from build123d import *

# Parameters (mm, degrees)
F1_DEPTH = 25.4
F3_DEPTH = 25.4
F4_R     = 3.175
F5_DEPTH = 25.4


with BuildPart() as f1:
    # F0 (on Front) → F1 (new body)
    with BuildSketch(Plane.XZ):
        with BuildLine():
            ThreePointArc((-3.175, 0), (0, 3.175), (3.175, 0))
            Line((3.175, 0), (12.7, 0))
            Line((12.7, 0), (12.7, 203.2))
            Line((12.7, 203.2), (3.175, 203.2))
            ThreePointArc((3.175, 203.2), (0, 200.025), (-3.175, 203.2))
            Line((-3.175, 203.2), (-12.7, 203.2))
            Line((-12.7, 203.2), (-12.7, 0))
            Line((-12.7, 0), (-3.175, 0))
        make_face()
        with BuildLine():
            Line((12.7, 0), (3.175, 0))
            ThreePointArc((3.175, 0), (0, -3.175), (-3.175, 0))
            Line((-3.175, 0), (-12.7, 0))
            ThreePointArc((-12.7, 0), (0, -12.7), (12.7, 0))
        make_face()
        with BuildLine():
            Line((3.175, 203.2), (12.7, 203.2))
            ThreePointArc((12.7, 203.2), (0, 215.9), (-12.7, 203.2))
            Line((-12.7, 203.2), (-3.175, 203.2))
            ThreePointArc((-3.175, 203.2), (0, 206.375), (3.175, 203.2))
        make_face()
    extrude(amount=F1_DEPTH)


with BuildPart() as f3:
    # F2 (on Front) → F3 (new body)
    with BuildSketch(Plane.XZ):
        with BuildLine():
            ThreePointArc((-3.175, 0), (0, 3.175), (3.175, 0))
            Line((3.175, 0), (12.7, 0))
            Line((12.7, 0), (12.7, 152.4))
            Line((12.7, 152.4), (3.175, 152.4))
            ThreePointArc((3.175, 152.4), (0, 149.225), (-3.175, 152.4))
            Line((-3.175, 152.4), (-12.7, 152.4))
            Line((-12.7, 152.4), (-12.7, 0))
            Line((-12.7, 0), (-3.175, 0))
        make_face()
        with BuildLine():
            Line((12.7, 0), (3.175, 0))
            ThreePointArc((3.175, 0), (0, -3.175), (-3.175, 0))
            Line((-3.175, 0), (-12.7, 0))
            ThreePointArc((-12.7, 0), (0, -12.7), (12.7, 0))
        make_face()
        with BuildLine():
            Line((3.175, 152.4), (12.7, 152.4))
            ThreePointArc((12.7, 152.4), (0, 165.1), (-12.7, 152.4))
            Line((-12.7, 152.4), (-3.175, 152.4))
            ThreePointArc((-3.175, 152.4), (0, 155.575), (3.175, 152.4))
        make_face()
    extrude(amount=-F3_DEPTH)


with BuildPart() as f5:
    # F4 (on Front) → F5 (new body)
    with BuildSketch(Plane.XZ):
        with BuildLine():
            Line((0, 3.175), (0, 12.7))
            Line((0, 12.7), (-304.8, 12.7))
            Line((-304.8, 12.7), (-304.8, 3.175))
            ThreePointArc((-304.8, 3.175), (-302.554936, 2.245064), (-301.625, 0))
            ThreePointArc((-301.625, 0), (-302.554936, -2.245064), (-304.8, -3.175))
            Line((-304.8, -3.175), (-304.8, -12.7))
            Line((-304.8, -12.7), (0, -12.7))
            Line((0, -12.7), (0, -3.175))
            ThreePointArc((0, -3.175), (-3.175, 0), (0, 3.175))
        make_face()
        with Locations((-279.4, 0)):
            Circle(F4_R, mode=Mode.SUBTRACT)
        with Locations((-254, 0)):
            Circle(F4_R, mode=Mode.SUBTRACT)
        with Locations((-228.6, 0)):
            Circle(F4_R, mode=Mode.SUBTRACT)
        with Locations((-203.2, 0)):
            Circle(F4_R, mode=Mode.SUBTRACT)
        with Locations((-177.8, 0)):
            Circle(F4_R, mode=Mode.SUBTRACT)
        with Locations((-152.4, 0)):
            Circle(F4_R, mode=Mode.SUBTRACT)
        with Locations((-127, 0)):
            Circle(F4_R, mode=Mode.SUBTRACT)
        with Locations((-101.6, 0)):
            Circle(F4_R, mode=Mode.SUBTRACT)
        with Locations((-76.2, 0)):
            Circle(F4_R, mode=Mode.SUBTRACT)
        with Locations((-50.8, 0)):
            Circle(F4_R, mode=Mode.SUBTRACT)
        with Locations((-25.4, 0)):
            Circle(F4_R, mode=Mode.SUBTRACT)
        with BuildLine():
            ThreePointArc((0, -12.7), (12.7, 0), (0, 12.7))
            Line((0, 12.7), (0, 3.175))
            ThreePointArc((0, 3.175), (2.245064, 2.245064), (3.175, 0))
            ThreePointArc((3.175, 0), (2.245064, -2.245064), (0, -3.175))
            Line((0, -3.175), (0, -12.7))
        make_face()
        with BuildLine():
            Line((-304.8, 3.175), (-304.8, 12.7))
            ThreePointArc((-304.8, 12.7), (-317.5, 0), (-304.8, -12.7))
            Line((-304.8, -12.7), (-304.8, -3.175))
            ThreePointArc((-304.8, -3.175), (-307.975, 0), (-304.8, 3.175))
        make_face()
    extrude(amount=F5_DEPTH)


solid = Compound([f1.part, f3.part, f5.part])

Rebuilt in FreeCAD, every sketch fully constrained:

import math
import FreeCAD as App
import Part
import Sketcher
from FreeCAD import Vector
Q = App.Units.Quantity

doc = App.newDocument("Part")
body = doc.addObject("PartDesign::Body", "Body")

# Sketch on XZ plane
sketch1 = doc.addObject("Sketcher::SketchObject", "Sketch")
body.addObject(sketch1)
sketch1.AttachmentSupport = (doc.XZ_Plane, [""])
sketch1.MapMode = "FlatFace"
sketch1.addGeometry([
    Part.LineSegment(Vector(12.7, 0, 0), Vector(12.7, 203.2, 0)),  # 0
    Part.ArcOfCircle(Part.Circle(Vector(0, 203.2, 0), Vector(0, 0, 1), 12.7), math.radians(0), math.radians(180)),  # 1
    Part.LineSegment(Vector(-12.7, 203.2, 0), Vector(-12.7, 0, 0)),  # 2
    Part.ArcOfCircle(Part.Circle(Vector(0, 0, 0), Vector(0, 0, 1), 12.7), math.radians(180), math.radians(360)),  # 3
    Part.Circle(Vector(0, 0, 0), Vector(0, 0, 1), 3.175),  # 4
    Part.Circle(Vector(0, 203.2, 0), Vector(0, 0, 1), 3.175),  # 5
], False)
sketch1.addConstraint([
    Sketcher.Constraint("Tangent", 0, 2, 1, 1),
    Sketcher.Constraint("Tangent", 1, 2, 2, 1),
    Sketcher.Constraint("Tangent", 2, 2, 3, 1),
    Sketcher.Constraint("Tangent", 3, 2, 0, 1),
    Sketcher.Constraint("Vertical", 0),
    Sketcher.Constraint("Vertical", 2),
    Sketcher.Constraint("Coincident", 3, 3, -1, 1),
    Sketcher.Constraint("Coincident", 4, 3, -1, 1),
    Sketcher.Constraint("Coincident", 5, 3, 1, 3),
    Sketcher.Constraint("Equal", 4, 5),
    Sketcher.Constraint("Radius", 1, Q("0.5 in")),
    Sketcher.Constraint("Diameter", 4, Q("0.25 in")),
    Sketcher.Constraint("DistanceY", 0, 1, 0, 2, Q("8 in")),
])
pad1 = doc.addObject("PartDesign::Pad", "Pad")
body.addObject(pad1)
pad1.Profile = sketch1
pad1.Length = Q("1 in")
body2 = doc.addObject("PartDesign::Body", "Body001")

# Sketch on XZ plane
sketch2 = doc.addObject("Sketcher::SketchObject", "Sketch001")
body2.addObject(sketch2)
sketch2.AttachmentSupport = (doc.getObject("XZ_Plane001"), [""])
sketch2.MapMode = "FlatFace"
sketch2.addGeometry([
    Part.LineSegment(Vector(12.7, 0, 0), Vector(12.7, 152.4, 0)),  # 0
    Part.ArcOfCircle(Part.Circle(Vector(0, 152.4, 0), Vector(0, 0, 1), 12.7), math.radians(0), math.radians(180)),  # 1
    Part.LineSegment(Vector(-12.7, 152.4, 0), Vector(-12.7, 0, 0)),  # 2
    Part.ArcOfCircle(Part.Circle(Vector(0, 0, 0), Vector(0, 0, 1), 12.7), math.radians(180), math.radians(360)),  # 3
    Part.Circle(Vector(0, 0, 0), Vector(0, 0, 1), 3.175),  # 4
    Part.Circle(Vector(0, 152.4, 0), Vector(0, 0, 1), 3.175),  # 5
], False)
sketch2.addConstraint([
    Sketcher.Constraint("Tangent", 0, 2, 1, 1),
    Sketcher.Constraint("Tangent", 1, 2, 2, 1),
    Sketcher.Constraint("Tangent", 2, 2, 3, 1),
    Sketcher.Constraint("Tangent", 3, 2, 0, 1),
    Sketcher.Constraint("Vertical", 0),
    Sketcher.Constraint("Vertical", 2),
    Sketcher.Constraint("Coincident", 3, 3, -1, 1),
    Sketcher.Constraint("Coincident", 4, 3, -1, 1),
    Sketcher.Constraint("Coincident", 5, 3, 1, 3),
    Sketcher.Constraint("Equal", 4, 5),
    Sketcher.Constraint("Radius", 1, Q("0.5 in")),
    Sketcher.Constraint("Diameter", 4, Q("0.25 in")),
    Sketcher.Constraint("DistanceY", 0, 1, 0, 2, Q("6 in")),
])
pad2 = doc.addObject("PartDesign::Pad", "Pad001")
body2.addObject(pad2)
pad2.Profile = sketch2
pad2.Length = Q("1 in")
pad2.Reversed = True
body3 = doc.addObject("PartDesign::Body", "Body002")

# Sketch on XZ plane
sketch3 = doc.addObject("Sketcher::SketchObject", "Sketch002")
body3.addObject(sketch3)
sketch3.AttachmentSupport = (doc.getObject("XZ_Plane002"), [""])
sketch3.MapMode = "FlatFace"
sketch3.addGeometry([
    Part.LineSegment(Vector(0, 12.7, 0), Vector(-304.8, 12.7, 0)),  # 0
    Part.ArcOfCircle(Part.Circle(Vector(-304.8, 0, 0), Vector(0, 0, 1), 12.7), math.radians(90), math.radians(270)),  # 1
    Part.LineSegment(Vector(-304.8, -12.7, 0), Vector(0, -12.7, 0)),  # 2
    Part.ArcOfCircle(Part.Circle(Vector(0, 0, 0), Vector(0, 0, 1), 12.7), math.radians(-90), math.radians(90)),  # 3
    Part.ArcOfCircle(Part.Circle(Vector(0, 0, 0), Vector(0, 0, 1), 3.175), math.radians(90), math.radians(270)),  # 4
    Part.ArcOfCircle(Part.Circle(Vector(0, 0, 0), Vector(0, 0, 1), 3.175), math.radians(0.000002), math.radians(89.999998)),  # 5
    Part.ArcOfCircle(Part.Circle(Vector(0, 0, 0), Vector(0, 0, 1), 3.175), math.radians(-89.999998), math.radians(-0.000002)),  # 6
    Part.ArcOfCircle(Part.Circle(Vector(-304.8, 0, 0), Vector(0, 0, 1), 3.175), math.radians(0.000002), math.radians(89.999998)),  # 7
    Part.ArcOfCircle(Part.Circle(Vector(-304.8, 0, 0), Vector(0, 0, 1), 3.175), math.radians(-89.999998), math.radians(-0.000002)),  # 8
    Part.ArcOfCircle(Part.Circle(Vector(-304.8, 0, 0), Vector(0, 0, 1), 3.175), math.radians(90), math.radians(270)),  # 9
    Part.Circle(Vector(-279.4, 0, 0), Vector(0, 0, 1), 3.175),  # 10
    Part.Circle(Vector(-254, 0, 0), Vector(0, 0, 1), 3.175),  # 11
    Part.Circle(Vector(-228.6, 0, 0), Vector(0, 0, 1), 3.175),  # 12
    Part.Circle(Vector(-203.2, 0, 0), Vector(0, 0, 1), 3.175),  # 13
    Part.Circle(Vector(-177.8, 0, 0), Vector(0, 0, 1), 3.175),  # 14
    Part.Circle(Vector(-152.4, 0, 0), Vector(0, 0, 1), 3.175),  # 15
    Part.Circle(Vector(-127, 0, 0), Vector(0, 0, 1), 3.175),  # 16
    Part.Circle(Vector(-101.6, 0, 0), Vector(0, 0, 1), 3.175),  # 17
    Part.Circle(Vector(-76.2, 0, 0), Vector(0, 0, 1), 3.175),  # 18
    Part.Circle(Vector(-50.8, 0, 0), Vector(0, 0, 1), 3.175),  # 19
    Part.Circle(Vector(-25.4, 0, 0), Vector(0, 0, 1), 3.175),  # 20
], False)
sketch3.addConstraint([
    Sketcher.Constraint("Tangent", 0, 2, 1, 1),
    Sketcher.Constraint("Tangent", 1, 2, 2, 1),
    Sketcher.Constraint("Tangent", 2, 2, 3, 1),
    Sketcher.Constraint("Tangent", 3, 2, 0, 1),
    Sketcher.Constraint("Tangent", 4, 1, 5, 2),
    Sketcher.Constraint("Tangent", 5, 1, 6, 2),
    Sketcher.Constraint("Tangent", 6, 1, 4, 2),
    Sketcher.Constraint("Tangent", 7, 1, 8, 2),
    Sketcher.Constraint("Tangent", 8, 1, 9, 2),
    Sketcher.Constraint("Tangent", 9, 1, 7, 2),
    Sketcher.Constraint("Horizontal", 0),
    Sketcher.Constraint("Horizontal", 2),
    Sketcher.Constraint("Coincident", 3, 3, -1, 1),
    Sketcher.Constraint("Coincident", 4, 3, -1, 1),
    Sketcher.Constraint("Coincident", 7, 3, 1, 3),
    Sketcher.Constraint("Equal", 6, 7),
    Sketcher.Constraint("Equal", 9, 10),
    Sketcher.Constraint("Equal", 10, 11),
    Sketcher.Constraint("Equal", 11, 12),
    Sketcher.Constraint("Equal", 12, 13),
    Sketcher.Constraint("Equal", 13, 14),
    Sketcher.Constraint("Equal", 14, 15),
    Sketcher.Constraint("Equal", 15, 16),
    Sketcher.Constraint("Equal", 16, 17),
    Sketcher.Constraint("Equal", 17, 18),
    Sketcher.Constraint("Equal", 18, 19),
    Sketcher.Constraint("Equal", 19, 20),
    Sketcher.Constraint("PointOnObject", 10, 3, -1),
    Sketcher.Constraint("PointOnObject", 11, 3, -1),
    Sketcher.Constraint("PointOnObject", 12, 3, -1),
    Sketcher.Constraint("PointOnObject", 13, 3, -1),
    Sketcher.Constraint("PointOnObject", 14, 3, -1),
    Sketcher.Constraint("PointOnObject", 15, 3, -1),
    Sketcher.Constraint("PointOnObject", 16, 3, -1),
    Sketcher.Constraint("PointOnObject", 17, 3, -1),
    Sketcher.Constraint("PointOnObject", 18, 3, -1),
    Sketcher.Constraint("PointOnObject", 19, 3, -1),
    Sketcher.Constraint("PointOnObject", 20, 3, -1),
    Sketcher.Constraint("PointOnObject", 4, 1, -2),
    Sketcher.Constraint("PointOnObject", 5, 1, -1),
    Sketcher.Constraint("PointOnObject", 6, 1, -2),
    Sketcher.Constraint("PointOnObject", 7, 1, -1),
    Sketcher.Constraint("Vertical", 1, 2, 8, 1),
    Sketcher.Constraint("Vertical", 8, 1, 9, 1),
    Sketcher.Constraint("Radius", 1, Q("0.5 in")),
    Sketcher.Constraint("Diameter", 10, Q("0.25 in")),
    Sketcher.Constraint("DistanceX", 0, 2, 0, 1, Q("12 in")),
    Sketcher.Constraint("DistanceX", 10, 3, -1, 1, Q("11 in")),
    Sketcher.Constraint("DistanceX", 11, 3, -1, 1, Q("10 in")),
    Sketcher.Constraint("DistanceX", 12, 3, -1, 1, Q("9 in")),
    Sketcher.Constraint("DistanceX", 13, 3, -1, 1, Q("8 in")),
    Sketcher.Constraint("DistanceX", 14, 3, -1, 1, Q("7 in")),
    Sketcher.Constraint("DistanceX", 15, 3, -1, 1, Q("6 in")),
    Sketcher.Constraint("DistanceX", 16, 3, -1, 1, Q("5 in")),
    Sketcher.Constraint("DistanceX", 17, 3, -1, 1, Q("4 in")),
    Sketcher.Constraint("DistanceX", 18, 3, -1, 1, Q("3 in")),
    Sketcher.Constraint("DistanceX", 19, 3, -1, 1, Q("2 in")),
    Sketcher.Constraint("DistanceX", 20, 3, -1, 1, Q("1 in")),
])
pad3 = doc.addObject("PartDesign::Pad", "Pad002")
body3.addObject(pad3)
pad3.Profile = sketch3
pad3.Length = Q("1 in")

doc.recompute()
